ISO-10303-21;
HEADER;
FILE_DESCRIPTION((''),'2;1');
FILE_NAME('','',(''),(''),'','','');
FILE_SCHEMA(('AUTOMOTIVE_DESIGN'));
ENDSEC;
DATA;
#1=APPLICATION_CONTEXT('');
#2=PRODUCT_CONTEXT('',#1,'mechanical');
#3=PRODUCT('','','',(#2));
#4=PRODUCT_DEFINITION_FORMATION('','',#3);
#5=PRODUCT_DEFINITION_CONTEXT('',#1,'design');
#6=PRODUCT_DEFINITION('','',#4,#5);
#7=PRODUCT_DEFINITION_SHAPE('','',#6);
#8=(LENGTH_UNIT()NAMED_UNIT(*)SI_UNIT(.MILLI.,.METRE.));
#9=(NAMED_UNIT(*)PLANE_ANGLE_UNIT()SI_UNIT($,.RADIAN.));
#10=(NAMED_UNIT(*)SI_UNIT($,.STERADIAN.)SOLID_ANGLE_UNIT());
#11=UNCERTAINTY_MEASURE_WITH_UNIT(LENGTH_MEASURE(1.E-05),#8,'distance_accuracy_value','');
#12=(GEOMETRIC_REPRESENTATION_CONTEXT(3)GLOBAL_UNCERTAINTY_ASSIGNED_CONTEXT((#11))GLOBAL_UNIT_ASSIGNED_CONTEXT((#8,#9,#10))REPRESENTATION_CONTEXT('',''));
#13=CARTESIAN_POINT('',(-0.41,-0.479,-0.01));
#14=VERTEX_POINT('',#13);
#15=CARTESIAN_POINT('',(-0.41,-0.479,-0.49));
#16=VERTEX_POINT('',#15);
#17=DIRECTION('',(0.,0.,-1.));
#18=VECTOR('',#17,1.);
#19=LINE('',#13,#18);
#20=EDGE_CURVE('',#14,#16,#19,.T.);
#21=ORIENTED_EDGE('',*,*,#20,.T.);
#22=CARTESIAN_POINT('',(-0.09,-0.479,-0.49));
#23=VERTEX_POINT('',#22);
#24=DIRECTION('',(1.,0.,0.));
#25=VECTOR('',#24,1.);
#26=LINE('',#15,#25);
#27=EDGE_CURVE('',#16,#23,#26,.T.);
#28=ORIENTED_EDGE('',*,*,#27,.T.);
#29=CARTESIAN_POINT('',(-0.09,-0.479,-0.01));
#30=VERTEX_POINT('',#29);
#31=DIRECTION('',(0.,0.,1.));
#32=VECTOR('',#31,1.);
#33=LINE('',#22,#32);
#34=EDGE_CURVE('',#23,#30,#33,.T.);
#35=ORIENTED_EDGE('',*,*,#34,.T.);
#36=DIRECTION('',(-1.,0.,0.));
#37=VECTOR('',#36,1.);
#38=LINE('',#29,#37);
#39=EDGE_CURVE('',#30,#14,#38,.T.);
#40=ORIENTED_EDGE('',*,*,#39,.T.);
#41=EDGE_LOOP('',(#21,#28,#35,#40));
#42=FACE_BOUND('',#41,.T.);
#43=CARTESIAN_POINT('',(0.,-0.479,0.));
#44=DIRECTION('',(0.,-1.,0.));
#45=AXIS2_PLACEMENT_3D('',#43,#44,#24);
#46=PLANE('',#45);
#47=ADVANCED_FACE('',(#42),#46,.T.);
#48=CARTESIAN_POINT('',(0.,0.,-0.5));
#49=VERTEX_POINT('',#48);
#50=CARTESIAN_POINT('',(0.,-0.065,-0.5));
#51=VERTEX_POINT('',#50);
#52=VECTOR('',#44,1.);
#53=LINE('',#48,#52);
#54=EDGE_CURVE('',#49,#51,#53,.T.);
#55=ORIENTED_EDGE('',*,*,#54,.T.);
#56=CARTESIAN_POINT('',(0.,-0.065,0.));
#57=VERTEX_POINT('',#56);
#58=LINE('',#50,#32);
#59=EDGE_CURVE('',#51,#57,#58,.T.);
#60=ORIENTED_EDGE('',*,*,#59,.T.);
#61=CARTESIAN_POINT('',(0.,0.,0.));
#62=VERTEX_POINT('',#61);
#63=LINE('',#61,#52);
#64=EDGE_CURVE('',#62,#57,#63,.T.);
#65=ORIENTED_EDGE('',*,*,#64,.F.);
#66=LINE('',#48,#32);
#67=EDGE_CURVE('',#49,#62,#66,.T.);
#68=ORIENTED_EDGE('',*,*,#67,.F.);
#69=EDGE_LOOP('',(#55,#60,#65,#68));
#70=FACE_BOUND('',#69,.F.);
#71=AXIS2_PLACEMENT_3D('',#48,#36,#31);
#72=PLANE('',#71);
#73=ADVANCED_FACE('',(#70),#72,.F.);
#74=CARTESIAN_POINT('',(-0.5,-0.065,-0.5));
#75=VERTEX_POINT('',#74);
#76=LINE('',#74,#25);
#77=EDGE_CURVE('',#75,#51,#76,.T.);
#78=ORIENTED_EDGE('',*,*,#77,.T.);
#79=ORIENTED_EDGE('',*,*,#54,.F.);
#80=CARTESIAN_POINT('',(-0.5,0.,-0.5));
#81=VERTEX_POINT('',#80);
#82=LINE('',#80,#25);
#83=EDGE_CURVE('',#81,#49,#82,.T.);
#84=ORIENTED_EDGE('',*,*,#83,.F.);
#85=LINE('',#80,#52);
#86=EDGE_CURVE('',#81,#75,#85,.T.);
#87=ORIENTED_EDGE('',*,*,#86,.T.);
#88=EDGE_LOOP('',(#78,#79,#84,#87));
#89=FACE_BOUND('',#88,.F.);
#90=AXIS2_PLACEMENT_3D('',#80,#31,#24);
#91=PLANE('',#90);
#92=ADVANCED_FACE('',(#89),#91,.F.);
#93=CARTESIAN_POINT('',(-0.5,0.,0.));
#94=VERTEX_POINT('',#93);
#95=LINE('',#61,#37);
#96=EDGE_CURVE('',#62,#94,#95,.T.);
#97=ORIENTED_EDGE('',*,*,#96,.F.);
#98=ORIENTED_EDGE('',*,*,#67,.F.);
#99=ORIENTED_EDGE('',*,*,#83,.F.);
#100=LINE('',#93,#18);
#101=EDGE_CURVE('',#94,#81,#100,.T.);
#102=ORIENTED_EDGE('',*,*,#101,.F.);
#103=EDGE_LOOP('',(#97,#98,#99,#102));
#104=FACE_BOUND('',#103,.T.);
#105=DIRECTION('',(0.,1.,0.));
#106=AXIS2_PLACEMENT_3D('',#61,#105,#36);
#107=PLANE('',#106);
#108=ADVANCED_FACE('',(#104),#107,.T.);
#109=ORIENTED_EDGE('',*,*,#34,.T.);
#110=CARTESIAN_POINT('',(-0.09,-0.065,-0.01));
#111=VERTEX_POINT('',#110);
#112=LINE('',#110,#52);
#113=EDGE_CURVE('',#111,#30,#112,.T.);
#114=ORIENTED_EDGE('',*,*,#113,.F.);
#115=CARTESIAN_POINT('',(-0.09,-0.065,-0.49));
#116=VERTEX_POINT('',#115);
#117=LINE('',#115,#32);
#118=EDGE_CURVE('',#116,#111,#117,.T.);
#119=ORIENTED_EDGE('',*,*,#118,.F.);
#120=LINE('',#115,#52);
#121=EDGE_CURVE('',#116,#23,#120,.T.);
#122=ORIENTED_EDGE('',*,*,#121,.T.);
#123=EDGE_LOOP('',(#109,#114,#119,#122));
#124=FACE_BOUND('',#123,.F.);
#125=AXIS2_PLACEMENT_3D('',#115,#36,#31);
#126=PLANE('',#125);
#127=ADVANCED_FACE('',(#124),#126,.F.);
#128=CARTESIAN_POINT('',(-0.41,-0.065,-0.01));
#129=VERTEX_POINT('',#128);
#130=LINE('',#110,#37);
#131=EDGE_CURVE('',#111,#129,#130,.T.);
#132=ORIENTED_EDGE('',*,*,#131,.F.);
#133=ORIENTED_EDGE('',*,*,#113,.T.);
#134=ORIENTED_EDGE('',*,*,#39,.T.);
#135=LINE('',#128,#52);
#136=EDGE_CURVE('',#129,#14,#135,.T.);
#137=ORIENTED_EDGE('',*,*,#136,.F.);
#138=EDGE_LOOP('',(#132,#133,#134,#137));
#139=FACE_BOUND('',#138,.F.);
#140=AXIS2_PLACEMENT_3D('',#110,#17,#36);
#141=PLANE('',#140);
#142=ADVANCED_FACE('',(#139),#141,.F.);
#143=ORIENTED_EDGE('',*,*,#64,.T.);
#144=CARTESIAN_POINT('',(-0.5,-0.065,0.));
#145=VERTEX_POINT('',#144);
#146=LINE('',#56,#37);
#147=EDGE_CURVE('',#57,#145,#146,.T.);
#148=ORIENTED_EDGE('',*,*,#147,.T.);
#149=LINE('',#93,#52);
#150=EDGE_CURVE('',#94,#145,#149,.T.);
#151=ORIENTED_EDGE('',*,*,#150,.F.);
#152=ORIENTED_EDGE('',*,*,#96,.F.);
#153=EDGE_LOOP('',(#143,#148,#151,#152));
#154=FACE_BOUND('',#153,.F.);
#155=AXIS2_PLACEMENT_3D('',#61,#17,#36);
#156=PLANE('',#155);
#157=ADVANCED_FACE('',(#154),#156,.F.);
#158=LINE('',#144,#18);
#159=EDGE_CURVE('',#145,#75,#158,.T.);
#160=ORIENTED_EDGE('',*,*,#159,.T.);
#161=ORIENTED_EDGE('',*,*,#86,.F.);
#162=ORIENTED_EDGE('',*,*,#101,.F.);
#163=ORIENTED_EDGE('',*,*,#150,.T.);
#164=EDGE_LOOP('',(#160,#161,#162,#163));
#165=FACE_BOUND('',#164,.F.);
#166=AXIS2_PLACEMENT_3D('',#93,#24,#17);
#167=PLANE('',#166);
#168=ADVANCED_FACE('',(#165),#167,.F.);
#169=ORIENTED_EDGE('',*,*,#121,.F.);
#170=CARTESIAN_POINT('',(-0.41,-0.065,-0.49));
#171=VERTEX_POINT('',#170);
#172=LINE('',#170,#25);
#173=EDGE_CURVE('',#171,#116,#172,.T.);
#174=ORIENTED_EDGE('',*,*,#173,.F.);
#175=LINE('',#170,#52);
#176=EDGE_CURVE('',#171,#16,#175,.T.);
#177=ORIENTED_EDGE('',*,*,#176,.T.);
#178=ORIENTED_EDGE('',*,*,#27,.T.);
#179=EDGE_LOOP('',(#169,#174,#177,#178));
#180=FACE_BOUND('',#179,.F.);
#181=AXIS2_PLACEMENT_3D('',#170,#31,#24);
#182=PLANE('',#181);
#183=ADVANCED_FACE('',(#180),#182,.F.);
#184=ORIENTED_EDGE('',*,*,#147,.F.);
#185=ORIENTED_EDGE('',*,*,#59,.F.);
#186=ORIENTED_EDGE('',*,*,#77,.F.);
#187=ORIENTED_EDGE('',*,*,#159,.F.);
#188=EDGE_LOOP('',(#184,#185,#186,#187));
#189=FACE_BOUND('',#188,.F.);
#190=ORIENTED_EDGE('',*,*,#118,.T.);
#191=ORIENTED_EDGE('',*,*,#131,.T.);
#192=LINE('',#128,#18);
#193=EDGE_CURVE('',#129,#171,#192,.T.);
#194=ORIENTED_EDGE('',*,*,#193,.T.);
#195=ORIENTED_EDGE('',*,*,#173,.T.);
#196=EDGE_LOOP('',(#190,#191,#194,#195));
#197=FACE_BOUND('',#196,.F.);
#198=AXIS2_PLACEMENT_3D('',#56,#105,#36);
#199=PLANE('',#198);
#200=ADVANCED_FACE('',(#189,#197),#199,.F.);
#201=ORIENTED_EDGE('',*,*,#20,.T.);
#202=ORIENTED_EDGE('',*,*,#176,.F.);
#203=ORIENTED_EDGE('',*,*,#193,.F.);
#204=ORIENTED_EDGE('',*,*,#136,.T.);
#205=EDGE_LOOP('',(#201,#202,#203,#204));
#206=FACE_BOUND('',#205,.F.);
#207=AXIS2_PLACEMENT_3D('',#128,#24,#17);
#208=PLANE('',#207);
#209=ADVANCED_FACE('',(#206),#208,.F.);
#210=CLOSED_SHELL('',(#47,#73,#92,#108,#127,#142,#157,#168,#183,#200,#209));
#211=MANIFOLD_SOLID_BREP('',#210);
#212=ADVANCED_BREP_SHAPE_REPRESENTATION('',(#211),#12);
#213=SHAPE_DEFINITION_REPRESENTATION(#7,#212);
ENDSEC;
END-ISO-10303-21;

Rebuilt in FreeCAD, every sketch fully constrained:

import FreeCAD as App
import Part
import Sketcher


def add_polygon(sketch, points):
    """Adds a closed chain of lines whose ends are joined by coincident constraints."""
    first, n = sketch.GeometryCount, len(points)
    for a, b in zip(points, points[1:] + points[:1]):
        sketch.addGeometry(Part.LineSegment(App.Vector(*a, 0), App.Vector(*b, 0)), False)
    for i in range(n):
        sketch.addConstraint(Sketcher.Constraint("Coincident", first + i, 2, first + (i + 1) % n, 1))

doc = App.newDocument("Part")
body = doc.addObject("PartDesign::Body", "Body")

# Sketch on XZ plane
sketch1 = body.newObject("Sketcher::SketchObject", "Sketch")
sketch1.AttachmentSupport = (doc.getObject("XZ_Plane"), [""])
sketch1.MapMode = "FlatFace"
add_polygon(sketch1, [(-0.5, 0), (0, 0), (0, -0.5), (-0.5, -0.5)])  # lines 0-3
sketch1.addConstraint(Sketcher.Constraint("Horizontal", 0))
sketch1.addConstraint(Sketcher.Constraint("Vertical", 1))
sketch1.addConstraint(Sketcher.Constraint("Horizontal", 2))
sketch1.addConstraint(Sketcher.Constraint("Vertical", 3))
sketch1.addConstraint(Sketcher.Constraint("Coincident", 0, 2, -1, 1))
sketch1.addConstraint(Sketcher.Constraint("Equal", 2, 1))
sketch1.addConstraint(Sketcher.Constraint("DistanceX", 0, 1, 0, 2, 0.5))
pad1 = body.newObject("PartDesign::Pad", "Pad")
pad1.Profile = sketch1
pad1.Length = 0.065

# Sketch on XZ plane
sketch2 = body.newObject("Sketcher::SketchObject", "Sketch001")
sketch2.AttachmentSupport = (doc.getObject("XZ_Plane"), [""])
sketch2.MapMode = "FlatFace"
sketch2.AttachmentOffset = App.Placement(App.Vector(0, 0, 0.065), App.Rotation())
add_polygon(sketch2, [(-0.09, -0.49), (-0.09, -0.01), (-0.41, -0.01), (-0.41, -0.49)])  # lines 0-3
sketch2.addConstraint(Sketcher.Constraint("Vertical", 0))
sketch2.addConstraint(Sketcher.Constraint("Horizontal", 1))
sketch2.addConstraint(Sketcher.Constraint("Vertical", 2))
sketch2.addConstraint(Sketcher.Constraint("Horizontal", 3))
sketch2.addConstraint(Sketcher.Constraint("DistanceX", 1, 2, 1, 1, 0.32))
sketch2.addConstraint(Sketcher.Constraint("DistanceY", 0, 1, 0, 2, 0.48))
sketch2.addConstraint(Sketcher.Constraint("DistanceX", 0, 2, -1, 1, 0.09))
sketch2.addConstraint(Sketcher.Constraint("DistanceY", 0, 2, -1, 1, 0.01))
pad2 = body.newObject("PartDesign::Pad", "Pad001")
pad2.Profile = sketch2
pad2.Length = 0.414

doc.recompute()
